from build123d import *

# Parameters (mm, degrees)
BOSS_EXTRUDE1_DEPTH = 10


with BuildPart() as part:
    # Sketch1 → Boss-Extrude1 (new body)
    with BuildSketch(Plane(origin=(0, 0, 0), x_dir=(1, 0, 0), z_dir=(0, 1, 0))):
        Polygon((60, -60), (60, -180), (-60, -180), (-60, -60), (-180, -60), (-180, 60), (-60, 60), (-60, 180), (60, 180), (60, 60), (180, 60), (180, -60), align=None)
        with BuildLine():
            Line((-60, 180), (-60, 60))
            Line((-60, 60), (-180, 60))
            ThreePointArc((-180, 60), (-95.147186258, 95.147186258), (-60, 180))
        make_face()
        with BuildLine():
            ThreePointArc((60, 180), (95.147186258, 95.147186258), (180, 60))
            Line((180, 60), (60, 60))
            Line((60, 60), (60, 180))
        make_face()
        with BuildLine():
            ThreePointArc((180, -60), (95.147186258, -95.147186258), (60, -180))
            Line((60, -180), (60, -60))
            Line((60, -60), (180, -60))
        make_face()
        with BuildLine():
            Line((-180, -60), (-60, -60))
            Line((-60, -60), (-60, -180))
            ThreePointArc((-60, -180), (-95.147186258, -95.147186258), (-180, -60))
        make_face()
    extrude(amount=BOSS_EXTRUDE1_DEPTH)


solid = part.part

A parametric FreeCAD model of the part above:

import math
import FreeCAD as App
import Part
import Sketcher

doc = App.newDocument("Part")
body = doc.addObject("PartDesign::Body", "Body")

# Sketch on XZ plane
sketch1 = body.newObject("Sketcher::SketchObject", "Sketch")
sketch1.AttachmentSupport = (doc.getObject("XZ_Plane"), [""])
sketch1.MapMode = "FlatFace"
sketch1.addGeometry(Part.LineSegment(App.Vector(-60, 180, 0), App.Vector(60, 180, 0)), False)
sketch1.addGeometry(Part.ArcOfCircle(Part.Circle(App.Vector(180, 180, 0), App.Vector(0, 0, 1), 120), math.radians(-180), math.radians(-90)), False)
sketch1.addGeometry(Part.LineSegment(App.Vector(180, 60, 0), App.Vector(180, -60, 0)), False)
sketch1.addGeometry(Part.ArcOfCircle(Part.Circle(App.Vector(180, -180, 0), App.Vector(0, 0, 1), 120), math.radians(90), math.radians(180)), False)
sketch1.addGeometry(Part.LineSegment(App.Vector(60, -180, 0), App.Vector(-60, -180, 0)), False)
sketch1.addGeometry(Part.ArcOfCircle(Part.Circle(App.Vector(-180, -180, 0), App.Vector(0, 0, 1), 120), math.radians(0), math.radians(90)), False)
sketch1.addGeometry(Part.LineSegment(App.Vector(-180, -60, 0), App.Vector(-180, 60, 0)), False)
sketch1.addGeometry(Part.ArcOfCircle(Part.Circle(App.Vector(-180, 180, 0), App.Vector(0, 0, 1), 120), math.radians(-90), math.radians(0)), False)
sketch1.addConstraint(Sketcher.Constraint("Coincident", 0, 2, 1, 1))
sketch1.addConstraint(Sketcher.Constraint("Coincident", 1, 2, 2, 1))
sketch1.addConstraint(Sketcher.Constraint("Coincident", 2, 2, 3, 1))
sketch1.addConstraint(Sketcher.Constraint("Coincident", 3, 2, 4, 1))
sketch1.addConstraint(Sketcher.Constraint("Coincident", 4, 2, 5, 1))
sketch1.addConstraint(Sketcher.Constraint("Coincident", 5, 2, 6, 1))
sketch1.addConstraint(Sketcher.Constraint("Coincident", 6, 2, 7, 1))
sketch1.addConstraint(Sketcher.Constraint("Coincident", 7, 2, 0, 1))
sketch1.addConstraint(Sketcher.Constraint("Horizontal", 0))
sketch1.addConstraint(Sketcher.Constraint("Vertical", 2))
sketch1.addConstraint(Sketcher.Constraint("Horizontal", 4))
sketch1.addConstraint(Sketcher.Constraint("Vertical", 6))
sketch1.addConstraint(Sketcher.Constraint("Equal", 1, 3))
sketch1.addConstraint(Sketcher.Constraint("Equal", 3, 5))
sketch1.addConstraint(Sketcher.Constraint("Equal", 5, 7))
sketch1.addConstraint(Sketcher.Constraint("Symmetric", 1, 3, 5, 3, -1, 1))
sketch1.addConstraint(Sketcher.Constraint("Symmetric", 3, 3, 7, 3, -1, 1))
sketch1.addConstraint(Sketcher.Constraint("Symmetric", 3, 3, 5, 3, -2))
sketch1.addConstraint(Sketcher.Constraint("Horizontal", 7, 3, 0, 2))
sketch1.addConstraint(Sketcher.Constraint("Horizontal", 5, 3, 3, 2))
sketch1.addConstraint(Sketcher.Constraint("Vertical", 3, 3, 1, 2))
sketch1.addConstraint(Sketcher.Constraint("Vertical", 7, 3, 5, 2))
sketch1.addConstraint(Sketcher.Constraint("Equal", 4, 2))
sketch1.addConstraint(Sketcher.Constraint("Radius", 1, 120.0))
sketch1.addConstraint(Sketcher.Constraint("DistanceX", 0, 1, 0, 2, 120.0))
pad1 = body.newObject("PartDesign::Pad", "Pad")
pad1.Profile = sketch1
pad1.Length = 10
pad1.Reversed = True

doc.recompute()
